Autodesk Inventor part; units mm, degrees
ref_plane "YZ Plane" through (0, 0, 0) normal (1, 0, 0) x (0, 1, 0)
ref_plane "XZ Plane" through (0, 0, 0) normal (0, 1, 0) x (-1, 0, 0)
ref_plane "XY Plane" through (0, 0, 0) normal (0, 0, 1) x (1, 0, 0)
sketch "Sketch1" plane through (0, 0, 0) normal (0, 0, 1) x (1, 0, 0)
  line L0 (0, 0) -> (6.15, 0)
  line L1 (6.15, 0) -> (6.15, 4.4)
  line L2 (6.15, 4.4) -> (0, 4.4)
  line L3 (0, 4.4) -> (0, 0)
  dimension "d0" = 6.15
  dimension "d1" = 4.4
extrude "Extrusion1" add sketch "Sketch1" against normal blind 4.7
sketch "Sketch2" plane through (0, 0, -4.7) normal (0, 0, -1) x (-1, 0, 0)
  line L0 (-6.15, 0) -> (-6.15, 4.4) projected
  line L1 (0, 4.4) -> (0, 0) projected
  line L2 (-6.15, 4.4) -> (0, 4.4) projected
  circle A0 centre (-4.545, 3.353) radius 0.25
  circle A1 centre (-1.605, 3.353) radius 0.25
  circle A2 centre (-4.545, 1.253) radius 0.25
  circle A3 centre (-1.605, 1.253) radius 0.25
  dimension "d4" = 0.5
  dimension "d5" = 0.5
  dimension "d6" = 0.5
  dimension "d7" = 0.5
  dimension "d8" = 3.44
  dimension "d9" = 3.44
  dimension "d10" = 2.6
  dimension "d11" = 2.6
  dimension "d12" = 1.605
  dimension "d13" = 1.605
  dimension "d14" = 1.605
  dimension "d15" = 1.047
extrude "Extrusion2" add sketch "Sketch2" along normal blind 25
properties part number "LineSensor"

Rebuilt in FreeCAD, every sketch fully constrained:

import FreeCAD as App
import Part
import Sketcher
from FreeCAD import Vector


def add_polygon(sketch, points):
    """Adds a closed chain of lines whose ends are joined by coincident constraints."""
    first, n = sketch.GeometryCount, len(points)
    for a, b in zip(points, points[1:] + points[:1]):
        sketch.addGeometry(Part.LineSegment(App.Vector(*a, 0), App.Vector(*b, 0)), False)
    for i in range(n):
        sketch.addConstraint(Sketcher.Constraint("Coincident", first + i, 2, first + (i + 1) % n, 1))

doc = App.newDocument("Part")
body = doc.addObject("PartDesign::Body", "Body")

# Sketch on XY plane
sketch1 = body.newObject("Sketcher::SketchObject", "Sketch")
sketch1.AttachmentSupport = (doc.getObject("XY_Plane"), [""])
sketch1.MapMode = "FlatFace"
add_polygon(sketch1, [(0, 4.4), (0, 0), (6.2, 0), (6.2, 4.4)])  # lines 0-3
sketch1.addConstraint(Sketcher.Constraint("Vertical", 0))
sketch1.addConstraint(Sketcher.Constraint("Horizontal", 1))
sketch1.addConstraint(Sketcher.Constraint("Vertical", 2))
sketch1.addConstraint(Sketcher.Constraint("Horizontal", 3))
sketch1.addConstraint(Sketcher.Constraint("Coincident", 0, 2, -1, 1))
sketch1.addConstraint(Sketcher.Constraint("DistanceY", 0, 2, 0, 1, 4.4))
sketch1.addConstraint(Sketcher.Constraint("DistanceX", 1, 1, 1, 2, 6.15))
pad1 = body.newObject("PartDesign::Pad", "Pad")
pad1.Profile = sketch1
pad1.Length = 4.7
pad1.Reversed = True

# Sketch on XY plane
sketch2 = body.newObject("Sketcher::SketchObject", "Sketch001")
sketch2.AttachmentSupport = (doc.getObject("XY_Plane"), [""])
sketch2.MapMode = "FlatFace"
sketch2.AttachmentOffset = App.Placement(Vector(0, 0, -4.7), App.Rotation())
sketch2.addGeometry(Part.Circle(Vector(4.54, 3.35, 0), Vector(0, 0, 1), 0.25), False)
sketch2.addGeometry(Part.Circle(Vector(1.6, 3.35, 0), Vector(0, 0, 1), 0.25), False)
sketch2.addGeometry(Part.Circle(Vector(4.54, 1.25, 0), Vector(0, 0, 1), 0.25), False)
sketch2.addGeometry(Part.Circle(Vector(1.6, 1.25, 0), Vector(0, 0, 1), 0.25), False)
sketch2.addConstraint(Sketcher.Constraint("Equal", 0, 1))
sketch2.addConstraint(Sketcher.Constraint("Equal", 1, 2))
sketch2.addConstraint(Sketcher.Constraint("Equal", 2, 3))
sketch2.addConstraint(Sketcher.Constraint("Horizontal", 0, 3, 1, 3))
sketch2.addConstraint(Sketcher.Constraint("Horizontal", 2, 3, 3, 3))
sketch2.addConstraint(Sketcher.Constraint("Vertical", 0, 3, 2, 3))
sketch2.addConstraint(Sketcher.Constraint("Vertical", 1, 3, 3, 3))
sketch2.addConstraint(Sketcher.Constraint("Diameter", 0, 0.5))
sketch2.addConstraint(Sketcher.Constraint("DistanceX", -1, 1, 1, 3, 1.605))
sketch2.addConstraint(Sketcher.Constraint("DistanceY", 2, 3, 0, 3, 2.1))
sketch2.addConstraint(Sketcher.Constraint("DistanceX", 1, 3, 0, 3, 2.94))
sketch2.addConstraint(Sketcher.Constraint("DistanceY", -1, 1, 0, 3, 3.353))
pad2 = body.newObject("PartDesign::Pad", "Pad001")
pad2.Profile = sketch2
pad2.Length = 25
pad2.Reversed = True

doc.recompute()
